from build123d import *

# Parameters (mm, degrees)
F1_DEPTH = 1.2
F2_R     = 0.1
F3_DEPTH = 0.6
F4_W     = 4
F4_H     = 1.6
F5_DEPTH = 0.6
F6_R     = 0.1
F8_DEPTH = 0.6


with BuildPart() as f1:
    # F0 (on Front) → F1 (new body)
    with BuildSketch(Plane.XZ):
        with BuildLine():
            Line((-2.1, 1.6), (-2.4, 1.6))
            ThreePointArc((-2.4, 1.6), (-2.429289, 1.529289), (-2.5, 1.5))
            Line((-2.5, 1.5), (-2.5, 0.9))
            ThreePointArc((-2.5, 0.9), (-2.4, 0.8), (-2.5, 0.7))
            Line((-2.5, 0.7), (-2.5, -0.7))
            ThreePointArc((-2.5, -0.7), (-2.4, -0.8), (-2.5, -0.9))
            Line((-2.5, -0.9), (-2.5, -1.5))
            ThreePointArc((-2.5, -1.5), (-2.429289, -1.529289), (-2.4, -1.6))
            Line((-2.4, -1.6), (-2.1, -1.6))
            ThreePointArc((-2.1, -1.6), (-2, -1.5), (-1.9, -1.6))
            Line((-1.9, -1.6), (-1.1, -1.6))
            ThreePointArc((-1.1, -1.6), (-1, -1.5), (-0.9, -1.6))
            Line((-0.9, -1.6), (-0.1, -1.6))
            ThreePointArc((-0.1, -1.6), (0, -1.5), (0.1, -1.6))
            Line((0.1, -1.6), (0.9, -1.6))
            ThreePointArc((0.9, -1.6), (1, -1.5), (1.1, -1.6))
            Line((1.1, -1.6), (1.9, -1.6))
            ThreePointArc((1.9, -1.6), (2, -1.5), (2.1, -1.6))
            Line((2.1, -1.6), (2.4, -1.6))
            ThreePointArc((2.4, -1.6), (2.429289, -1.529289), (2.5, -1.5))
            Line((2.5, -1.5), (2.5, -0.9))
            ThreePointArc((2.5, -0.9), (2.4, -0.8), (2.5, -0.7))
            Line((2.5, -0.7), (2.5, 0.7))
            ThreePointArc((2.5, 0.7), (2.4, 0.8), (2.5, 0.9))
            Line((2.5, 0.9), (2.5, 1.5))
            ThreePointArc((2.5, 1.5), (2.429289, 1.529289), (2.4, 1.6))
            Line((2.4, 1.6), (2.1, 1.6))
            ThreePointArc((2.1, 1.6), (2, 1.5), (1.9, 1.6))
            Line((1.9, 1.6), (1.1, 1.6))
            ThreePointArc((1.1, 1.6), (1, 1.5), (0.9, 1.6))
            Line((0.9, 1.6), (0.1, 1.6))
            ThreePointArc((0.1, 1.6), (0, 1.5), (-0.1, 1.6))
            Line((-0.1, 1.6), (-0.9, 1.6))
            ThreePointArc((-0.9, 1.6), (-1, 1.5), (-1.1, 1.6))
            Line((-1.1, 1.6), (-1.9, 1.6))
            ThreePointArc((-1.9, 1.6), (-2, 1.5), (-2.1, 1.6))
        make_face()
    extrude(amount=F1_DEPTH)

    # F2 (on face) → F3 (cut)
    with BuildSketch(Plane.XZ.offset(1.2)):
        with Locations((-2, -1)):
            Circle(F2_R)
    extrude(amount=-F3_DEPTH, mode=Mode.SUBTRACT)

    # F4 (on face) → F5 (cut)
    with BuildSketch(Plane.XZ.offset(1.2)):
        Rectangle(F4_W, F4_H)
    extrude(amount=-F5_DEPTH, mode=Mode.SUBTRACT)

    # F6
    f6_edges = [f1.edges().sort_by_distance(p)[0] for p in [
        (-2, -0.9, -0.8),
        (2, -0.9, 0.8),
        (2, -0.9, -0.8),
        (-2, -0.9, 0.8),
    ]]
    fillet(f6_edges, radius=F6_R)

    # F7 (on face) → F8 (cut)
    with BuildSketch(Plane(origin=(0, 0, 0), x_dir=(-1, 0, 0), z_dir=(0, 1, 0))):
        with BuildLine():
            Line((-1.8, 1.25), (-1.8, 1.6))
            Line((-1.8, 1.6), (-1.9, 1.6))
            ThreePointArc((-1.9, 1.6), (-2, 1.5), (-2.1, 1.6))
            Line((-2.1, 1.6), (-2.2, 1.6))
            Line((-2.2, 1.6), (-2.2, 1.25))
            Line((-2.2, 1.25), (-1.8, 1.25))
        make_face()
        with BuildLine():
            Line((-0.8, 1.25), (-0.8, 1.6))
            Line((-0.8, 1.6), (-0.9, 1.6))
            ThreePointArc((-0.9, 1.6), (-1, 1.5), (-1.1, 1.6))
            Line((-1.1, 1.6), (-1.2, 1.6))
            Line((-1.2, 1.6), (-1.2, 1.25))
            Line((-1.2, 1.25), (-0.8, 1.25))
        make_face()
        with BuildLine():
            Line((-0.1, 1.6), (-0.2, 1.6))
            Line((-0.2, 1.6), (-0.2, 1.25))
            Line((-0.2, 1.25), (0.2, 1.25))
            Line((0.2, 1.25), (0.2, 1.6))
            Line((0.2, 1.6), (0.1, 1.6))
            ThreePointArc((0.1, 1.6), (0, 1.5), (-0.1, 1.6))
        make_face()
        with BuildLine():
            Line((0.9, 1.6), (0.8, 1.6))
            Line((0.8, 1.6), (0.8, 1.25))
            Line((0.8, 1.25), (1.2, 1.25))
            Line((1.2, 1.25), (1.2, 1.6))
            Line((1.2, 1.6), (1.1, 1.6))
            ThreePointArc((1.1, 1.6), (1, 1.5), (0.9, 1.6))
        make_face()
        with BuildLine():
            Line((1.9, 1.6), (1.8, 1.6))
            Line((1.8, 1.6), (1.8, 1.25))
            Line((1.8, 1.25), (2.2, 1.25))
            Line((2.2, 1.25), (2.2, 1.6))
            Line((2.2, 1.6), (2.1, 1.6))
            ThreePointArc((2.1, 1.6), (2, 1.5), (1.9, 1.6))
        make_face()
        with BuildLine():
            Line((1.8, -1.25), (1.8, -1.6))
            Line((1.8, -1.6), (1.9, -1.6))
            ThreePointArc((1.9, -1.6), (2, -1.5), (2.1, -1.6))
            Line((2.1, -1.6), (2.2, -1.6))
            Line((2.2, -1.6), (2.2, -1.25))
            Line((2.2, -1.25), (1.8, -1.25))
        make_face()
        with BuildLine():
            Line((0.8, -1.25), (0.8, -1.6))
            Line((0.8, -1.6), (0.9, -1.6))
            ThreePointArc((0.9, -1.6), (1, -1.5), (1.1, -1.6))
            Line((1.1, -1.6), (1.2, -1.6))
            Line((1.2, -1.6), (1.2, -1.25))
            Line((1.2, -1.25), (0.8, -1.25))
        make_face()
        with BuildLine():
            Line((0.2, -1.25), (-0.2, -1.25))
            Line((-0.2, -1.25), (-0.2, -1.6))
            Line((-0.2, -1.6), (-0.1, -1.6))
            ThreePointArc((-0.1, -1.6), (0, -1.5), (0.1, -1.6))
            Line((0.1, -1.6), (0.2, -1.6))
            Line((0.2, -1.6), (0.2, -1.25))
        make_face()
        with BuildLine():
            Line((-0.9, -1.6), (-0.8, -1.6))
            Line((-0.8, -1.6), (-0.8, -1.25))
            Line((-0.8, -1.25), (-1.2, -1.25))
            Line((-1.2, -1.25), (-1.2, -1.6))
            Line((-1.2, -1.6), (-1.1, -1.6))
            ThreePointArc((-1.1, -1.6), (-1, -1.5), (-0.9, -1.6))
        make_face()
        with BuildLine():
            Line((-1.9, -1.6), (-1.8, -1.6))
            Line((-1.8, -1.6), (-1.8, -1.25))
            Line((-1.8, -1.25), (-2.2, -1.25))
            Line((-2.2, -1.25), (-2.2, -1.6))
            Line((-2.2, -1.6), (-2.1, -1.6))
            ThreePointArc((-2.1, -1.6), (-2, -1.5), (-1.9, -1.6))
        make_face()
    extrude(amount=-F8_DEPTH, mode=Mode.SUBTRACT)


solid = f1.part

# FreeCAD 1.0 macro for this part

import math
import FreeCAD as App
import Part
import Sketcher
Q = App.Units.Quantity


def edges_at(feature, points):
    """Names of the edges that pass closest to the given points."""
    edges = feature.Shape.Edges
    near = lambda p: min(range(len(edges)), key=lambda i: edges[i].distToShape(Part.Vertex(*p))[0])
    return sorted({f"Edge{near(p) + 1}" for p in points})


def add_polygon(sketch, points):
    """Adds a closed chain of lines whose ends are joined by coincident constraints."""
    first, n = sketch.GeometryCount, len(points)
    for a, b in zip(points, points[1:] + points[:1]):
        sketch.addGeometry(Part.LineSegment(App.Vector(*a, 0), App.Vector(*b, 0)), False)
    for i in range(n):
        sketch.addConstraint(Sketcher.Constraint("Coincident", first + i, 2, first + (i + 1) % n, 1))

doc = App.newDocument("Part")
body = doc.addObject("PartDesign::Body", "Body")

# Sketch on XZ plane
sketch1 = doc.addObject("Sketcher::SketchObject", "Sketch")
body.addObject(sketch1)
sketch1.AttachmentSupport = (doc.XZ_Plane, [""])
sketch1.MapMode = "FlatFace"
sketch1.addGeometry(Part.LineSegment(App.Vector(-2.1, 1.6, 0), App.Vector(-2.4, 1.6, 0)), False)
sketch1.addGeometry(Part.ArcOfCircle(Part.Circle(App.Vector(-2.499999, 1.599999, 0), App.Vector(0, 0, 1), 0.099999), math.radians(-90.00063), math.radians(0.00063)), False)
sketch1.addGeometry(Part.LineSegment(App.Vector(-2.5, 1.5, 0), App.Vector(-2.5, 0.9, 0)), False)
sketch1.addGeometry(Part.ArcOfCircle(Part.Circle(App.Vector(-2.5, 0.8, 0), App.Vector(0, 0, 1), 0.1), math.radians(-90), math.radians(90)), False)
sketch1.addGeometry(Part.LineSegment(App.Vector(-2.5, 0.7, 0), App.Vector(-2.5, -0.7, 0)), False)
sketch1.addGeometry(Part.ArcOfCircle(Part.Circle(App.Vector(-2.5, -0.8, 0), App.Vector(0, 0, 1), 0.1), math.radians(-90), math.radians(90)), False)
sketch1.addGeometry(Part.LineSegment(App.Vector(-2.5, -0.9, 0), App.Vector(-2.5, -1.5, 0)), False)
sketch1.addGeometry(Part.ArcOfCircle(Part.Circle(App.Vector(-2.499999, -1.599999, 0), App.Vector(0, 0, 1), 0.099999), math.radians(-0.00063), math.radians(90.00063)), False)
sketch1.addGeometry(Part.LineSegment(App.Vector(-2.4, -1.6, 0), App.Vector(-2.1, -1.6, 0)), False)
sketch1.addGeometry(Part.ArcOfCircle(Part.Circle(App.Vector(-2, -1.6, 0), App.Vector(0, 0, 1), 0.1), math.radians(0), math.radians(180)), False)
sketch1.addGeometry(Part.LineSegment(App.Vector(-1.9, -1.6, 0), App.Vector(-1.1, -1.6, 0)), False)
sketch1.addGeometry(Part.ArcOfCircle(Part.Circle(App.Vector(-1, -1.6, 0), App.Vector(0, 0, 1), 0.1), math.radians(0), math.radians(180)), False)
sketch1.addGeometry(Part.LineSegment(App.Vector(-0.9, -1.6, 0), App.Vector(-0.1, -1.6, 0)), False)
sketch1.addGeometry(Part.ArcOfCircle(Part.Circle(App.Vector(0, -1.6, 0), App.Vector(0, 0, 1), 0.1), math.radians(0), math.radians(180)), False)
sketch1.addGeometry(Part.LineSegment(App.Vector(0.1, -1.6, 0), App.Vector(0.9, -1.6, 0)), False)
sketch1.addGeometry(Part.ArcOfCircle(Part.Circle(App.Vector(1, -1.6, 0), App.Vector(0, 0, 1), 0.1), math.radians(0), math.radians(180)), False)
sketch1.addGeometry(Part.LineSegment(App.Vector(1.1, -1.6, 0), App.Vector(1.9, -1.6, 0)), False)
sketch1.addGeometry(Part.ArcOfCircle(Part.Circle(App.Vector(2, -1.6, 0), App.Vector(0, 0, 1), 0.1), math.radians(0), math.radians(180)), False)
sketch1.addGeometry(Part.LineSegment(App.Vector(2.1, -1.6, 0), App.Vector(2.4, -1.6, 0)), False)
sketch1.addGeometry(Part.ArcOfCircle(Part.Circle(App.Vector(2.499999, -1.599999, 0), App.Vector(0, 0, 1), 0.099999), math.radians(89.99937), math.radians(180.00063)), False)
sketch1.addGeometry(Part.LineSegment(App.Vector(2.5, -1.5, 0), App.Vector(2.5, -0.9, 0)), False)
sketch1.addGeometry(Part.ArcOfCircle(Part.Circle(App.Vector(2.5, -0.8, 0), App.Vector(0, 0, 1), 0.1), math.radians(90), math.radians(270)), False)
sketch1.addGeometry(Part.LineSegment(App.Vector(2.5, -0.7, 0), App.Vector(2.5, 0.7, 0)), False)
sketch1.addGeometry(Part.ArcOfCircle(Part.Circle(App.Vector(2.5, 0.8, 0), App.Vector(0, 0, 1), 0.1), math.radians(90), math.radians(270)), False)
sketch1.addGeometry(Part.LineSegment(App.Vector(2.5, 0.9, 0), App.Vector(2.5, 1.5, 0)), False)
sketch1.addGeometry(Part.ArcOfCircle(Part.Circle(App.Vector(2.499999, 1.599999, 0), App.Vector(0, 0, 1), 0.099999), math.radians(179.99937), math.radians(270.00063)), False)
sketch1.addGeometry(Part.LineSegment(App.Vector(2.4, 1.6, 0), App.Vector(2.1, 1.6, 0)), False)
sketch1.addGeometry(Part.ArcOfCircle(Part.Circle(App.Vector(2, 1.6, 0), App.Vector(0, 0, 1), 0.1), math.radians(180), math.radians(360)), False)
sketch1.addGeometry(Part.LineSegment(App.Vector(1.9, 1.6, 0), App.Vector(1.1, 1.6, 0)), False)
sketch1.addGeometry(Part.ArcOfCircle(Part.Circle(App.Vector(1, 1.6, 0), App.Vector(0, 0, 1), 0.1), math.radians(180), math.radians(360)), False)
sketch1.addGeometry(Part.LineSegment(App.Vector(0.9, 1.6, 0), App.Vector(0.1, 1.6, 0)), False)
sketch1.addGeometry(Part.ArcOfCircle(Part.Circle(App.Vector(0, 1.6, 0), App.Vector(0, 0, 1), 0.1), math.radians(180), math.radians(360)), False)
sketch1.addGeometry(Part.LineSegment(App.Vector(-0.1, 1.6, 0), App.Vector(-0.9, 1.6, 0)), False)
sketch1.addGeometry(Part.ArcOfCircle(Part.Circle(App.Vector(-1, 1.6, 0), App.Vector(0, 0, 1), 0.1), math.radians(180), math.radians(360)), False)
sketch1.addGeometry(Part.LineSegment(App.Vector(-1.1, 1.6, 0), App.Vector(-1.9, 1.6, 0)), False)
sketch1.addGeometry(Part.ArcOfCircle(Part.Circle(App.Vector(-2, 1.6, 0), App.Vector(0, 0, 1), 0.1), math.radians(180), math.radians(360)), False)
sketch1.addConstraint(Sketcher.Constraint("Coincident", 0, 2, 1, 2))
sketch1.addConstraint(Sketcher.Constraint("Coincident", 1, 1, 2, 1))
sketch1.addConstraint(Sketcher.Constraint("Coincident", 2, 2, 3, 2))
sketch1.addConstraint(Sketcher.Constraint("Coincident", 3, 1, 4, 1))
sketch1.addConstraint(Sketcher.Constraint("Coincident", 4, 2, 5, 2))
sketch1.addConstraint(Sketcher.Constraint("Coincident", 5, 1, 6, 1))
sketch1.addConstraint(Sketcher.Constraint("Coincident", 6, 2, 7, 2))
sketch1.addConstraint(Sketcher.Constraint("Coincident", 7, 1, 8, 1))
sketch1.addConstraint(Sketcher.Constraint("Coincident", 8, 2, 9, 2))
sketch1.addConstraint(Sketcher.Constraint("Coincident", 9, 1, 10, 1))
sketch1.addConstraint(Sketcher.Constraint("Coincident", 10, 2, 11, 2))
sketch1.addConstraint(Sketcher.Constraint("Coincident", 11, 1, 12, 1))
sketch1.addConstraint(Sketcher.Constraint("Coincident", 12, 2, 13, 2))
sketch1.addConstraint(Sketcher.Constraint("Coincident", 13, 1, 14, 1))
sketch1.addConstraint(Sketcher.Constraint("Coincident", 14, 2, 15, 2))
sketch1.addConstraint(Sketcher.Constraint("Coincident", 15, 1, 16, 1))
sketch1.addConstraint(Sketcher.Constraint("Coincident", 16, 2, 17, 2))
sketch1.addConstraint(Sketcher.Constraint("Coincident", 17, 1, 18, 1))
sketch1.addConstraint(Sketcher.Constraint("Coincident", 18, 2, 19, 2))
sketch1.addConstraint(Sketcher.Constraint("Coincident", 19, 1, 20, 1))
sketch1.addConstraint(Sketcher.Constraint("Coincident", 20, 2, 21, 2))
sketch1.addConstraint(Sketcher.Constraint("Coincident", 21, 1, 22, 1))
sketch1.addConstraint(Sketcher.Constraint("Coincident", 22, 2, 23, 2))
sketch1.addConstraint(Sketcher.Constraint("Coincident", 23, 1, 24, 1))
sketch1.addConstraint(Sketcher.Constraint("Coincident", 24, 2, 25, 2))
sketch1.addConstraint(Sketcher.Constraint("Coincident", 25, 1, 26, 1))
sketch1.addConstraint(Sketcher.Constraint("Coincident", 26, 2, 27, 2))
sketch1.addConstraint(Sketcher.Constraint("Coincident", 27, 1, 28, 1))
sketch1.addConstraint(Sketcher.Constraint("Coincident", 28, 2, 29, 2))
sketch1.addConstraint(Sketcher.Constraint("Coincident", 29, 1, 30, 1))
sketch1.addConstraint(Sketcher.Constraint("Coincident", 30, 2, 31, 2))
sketch1.addConstraint(Sketcher.Constraint("Coincident", 31, 1, 32, 1))
sketch1.addConstraint(Sketcher.Constraint("Coincident", 32, 2, 33, 2))
sketch1.addConstraint(Sketcher.Constraint("Coincident", 33, 1, 34, 1))
sketch1.addConstraint(Sketcher.Constraint("Coincident", 34, 2, 35, 2))
sketch1.addConstraint(Sketcher.Constraint("Coincident", 35, 1, 0, 1))
sketch1.addConstraint(Sketcher.Constraint("Horizontal", 0))
sketch1.addConstraint(Sketcher.Constraint("Vertical", 2))
sketch1.addConstraint(Sketcher.Constraint("Vertical", 4))
sketch1.addConstraint(Sketcher.Constraint("Vertical", 6))
sketch1.addConstraint(Sketcher.Constraint("Horizontal", 8))
sketch1.addConstraint(Sketcher.Constraint("Horizontal", 10))
sketch1.addConstraint(Sketcher.Constraint("Horizontal", 12))
sketch1.addConstraint(Sketcher.Constraint("Horizontal", 14))
sketch1.addConstraint(Sketcher.Constraint("Horizontal", 16))
sketch1.addConstraint(Sketcher.Constraint("Horizontal", 18))
sketch1.addConstraint(Sketcher.Constraint("Vertical", 20))
sketch1.addConstraint(Sketcher.Constraint("Vertical", 22))
sketch1.addConstraint(Sketcher.Constraint("Vertical", 24))
sketch1.addConstraint(Sketcher.Constraint("Horizontal", 26))
sketch1.addConstraint(Sketcher.Constraint("Horizontal", 28))
sketch1.addConstraint(Sketcher.Constraint("Horizontal", 30))
sketch1.addConstraint(Sketcher.Constraint("Horizontal", 32))
sketch1.addConstraint(Sketcher.Constraint("Horizontal", 34))
sketch1.addConstraint(Sketcher.Constraint("Equal", 1, 3))
sketch1.addConstraint(Sketcher.Constraint("Equal", 3, 5))
sketch1.addConstraint(Sketcher.Constraint("Equal", 5, 7))
sketch1.addConstraint(Sketcher.Constraint("Equal", 7, 9))
sketch1.addConstraint(Sketcher.Constraint("Equal", 9, 11))
sketch1.addConstraint(Sketcher.Constraint("Equal", 11, 13))
sketch1.addConstraint(Sketcher.Constraint("Equal", 13, 15))
sketch1.addConstraint(Sketcher.Constraint("Equal", 15, 17))
sketch1.addConstraint(Sketcher.Constraint("Equal", 17, 19))
sketch1.addConstraint(Sketcher.Constraint("Equal", 19, 21))
sketch1.addConstraint(Sketcher.Constraint("Equal", 21, 23))
sketch1.addConstraint(Sketcher.Constraint("Equal", 23, 25))
sketch1.addConstraint(Sketcher.Constraint("Equal", 25, 27))
sketch1.addConstraint(Sketcher.Constraint("Equal", 27, 29))
sketch1.addConstraint(Sketcher.Constraint("Equal", 29, 31))
sketch1.addConstraint(Sketcher.Constraint("Equal", 31, 33))
sketch1.addConstraint(Sketcher.Constraint("Equal", 33, 35))
sketch1.addConstraint(Sketcher.Constraint("Symmetric", 1, 3, 19, 3, -1, 1))
sketch1.addConstraint(Sketcher.Constraint("Symmetric", 3, 3, 21, 3, -1, 1))
sketch1.addConstraint(Sketcher.Constraint("Symmetric", 5, 3, 23, 3, -1, 1))
sketch1.addConstraint(Sketcher.Constraint("Symmetric", 7, 3, 25, 3, -1, 1))
sketch1.addConstraint(Sketcher.Constraint("Symmetric", 9, 3, 27, 3, -1, 1))
sketch1.addConstraint(Sketcher.Constraint("Symmetric", 11, 3, 29, 3, -1, 1))
sketch1.addConstraint(Sketcher.Constraint("Symmetric", 13, 3, 31, 3, -1, 1))
sketch1.addConstraint(Sketcher.Constraint("Symmetric", 15, 3, 33, 3, -1, 1))
sketch1.addConstraint(Sketcher.Constraint("Symmetric", 17, 3, 35, 3, -1, 1))
sketch1.addConstraint(Sketcher.Constraint("Symmetric", 11, 3, 15, 3, -2))
sketch1.addConstraint(Sketcher.Constraint("Symmetric", 9, 3, 17, 3, -2))
sketch1.addConstraint(Sketcher.Constraint("Symmetric", 7, 3, 19, 3, -2))
sketch1.addConstraint(Sketcher.Constraint("Symmetric", 5, 3, 21, 3, -2))
sketch1.addConstraint(Sketcher.Constraint("Symmetric", 12, 2, 13, 1, -2))
sketch1.addConstraint(Sketcher.Constraint("Horizontal", 7, 3, 9, 3))
sketch1.addConstraint(Sketcher.Constraint("Horizontal", 9, 3, 11, 3))
sketch1.addConstraint(Sketcher.Constraint("Horizontal", 11, 3, 13, 3))
sketch1.addConstraint(Sketcher.Constraint("Horizontal", 35, 3, 0, 2))
sketch1.addConstraint(Sketcher.Constraint("Horizontal", 19, 3, 7, 1))
sketch1.addConstraint(Sketcher.Constraint("Horizontal", 8, 2, 9, 1))
sketch1.addConstraint(Sketcher.Constraint("Horizontal", 10, 2, 11, 1))
sketch1.addConstraint(Sketcher.Constraint("Horizontal", 14, 2, 15, 1))
sketch1.addConstraint(Sketcher.Constraint("Horizontal", 16, 2, 17, 1))
sketch1.addConstraint(Sketcher.Constraint("Horizontal", 0, 2, 25, 1))
sketch1.addConstraint(Sketcher.Constraint("Horizontal", 26, 2, 27, 1))
sketch1.addConstraint(Sketcher.Constraint("Horizontal", 28, 2, 29, 1))
sketch1.addConstraint(Sketcher.Constraint("Horizontal", 30, 2, 31, 1))
sketch1.addConstraint(Sketcher.Constraint("Horizontal", 32, 2, 33, 1))
sketch1.addConstraint(Sketcher.Constraint("Vertical", 1, 3, 3, 3))
sketch1.addConstraint(Sketcher.Constraint("Vertical", 7, 3, 1, 1))
sketch1.addConstraint(Sketcher.Constraint("Vertical", 2, 2, 3, 1))
sketch1.addConstraint(Sketcher.Constraint("Vertical", 4, 2, 5, 1))
sketch1.addConstraint(Sketcher.Constraint("Vertical", 25, 3, 19, 1))
sketch1.addConstraint(Sketcher.Constraint("Vertical", 20, 2, 21, 1))
sketch1.addConstraint(Sketcher.Constraint("Vertical", 22, 2, 23, 1))
sketch1.addConstraint(Sketcher.Constraint("Equal", 10, 12))
sketch1.addConstraint(Sketcher.Constraint("Radius", 1, Q("0.099999 mm")))
sketch1.addConstraint(Sketcher.Constraint("DistanceX", 0, 2, 0, 1, Q("0.3 mm")))
sketch1.addConstraint(Sketcher.Constraint("DistanceX", 10, 1, 10, 2, Q("0.8 mm")))
sketch1.addConstraint(Sketcher.Constraint("DistanceY", 2, 2, 2, 1, Q("0.6 mm")))
sketch1.addConstraint(Sketcher.Constraint("DistanceY", 4, 2, 4, 1, Q("1.4 mm")))
pad1 = doc.addObject("PartDesign::Pad", "Pad")
body.addObject(pad1)
pad1.Profile = sketch1
pad1.Length = 1.2

# Sketch on XZ plane
sketch2 = doc.addObject("Sketcher::SketchObject", "Sketch001")
body.addObject(sketch2)
sketch2.AttachmentSupport = (doc.XZ_Plane, [""])
sketch2.MapMode = "FlatFace"
sketch2.AttachmentOffset = App.Placement(App.Vector(0, 0, 1.2), App.Rotation())
sketch2.addGeometry(Part.Circle(App.Vector(-2, -1, 0), App.Vector(0, 0, 1), 0.1), False)
sketch2.addConstraint(Sketcher.Constraint("Diameter", 0, Q("0.2 mm")))
sketch2.addConstraint(Sketcher.Constraint("DistanceX", 0, 3, -1, 1, Q("2 mm")))
sketch2.addConstraint(Sketcher.Constraint("DistanceY", 0, 3, -1, 1, Q("1 mm")))
pocket1 = doc.addObject("PartDesign::Pocket", "Pocket")
body.addObject(pocket1)
pocket1.Profile = sketch2
pocket1.Length = 0.6

# Sketch on XZ plane
sketch3 = doc.addObject("Sketcher::SketchObject", "Sketch002")
body.addObject(sketch3)
sketch3.AttachmentSupport = (doc.XZ_Plane, [""])
sketch3.MapMode = "FlatFace"
sketch3.AttachmentOffset = App.Placement(App.Vector(0, 0, 1.2), App.Rotation())
add_polygon(sketch3, [(-2, 0.8), (-2, -0.8), (2, -0.8), (2, 0.8)])  # lines 0-3
sketch3.addConstraint(Sketcher.Constraint("Vertical", 0))
sketch3.addConstraint(Sketcher.Constraint("Horizontal", 1))
sketch3.addConstraint(Sketcher.Constraint("Vertical", 2))
sketch3.addConstraint(Sketcher.Constraint("Horizontal", 3))
sketch3.addConstraint(Sketcher.Constraint("Symmetric", 0, 2, 2, 2, -1, 1))
sketch3.addConstraint(Sketcher.Constraint("DistanceX", 1, 1, 1, 2, Q("4 mm")))
sketch3.addConstraint(Sketcher.Constraint("DistanceY", 0, 2, 0, 1, Q("1.6 mm")))
pocket2 = doc.addObject("PartDesign::Pocket", "Pocket001")
body.addObject(pocket2)
pocket2.Profile = sketch3
pocket2.Length = 0.6
doc.recompute()

fillet = doc.addObject("PartDesign::Fillet", "Fillet")
body.addObject(fillet)
fillet.Base = (pocket2, edges_at(pocket2, [
    (-2, -0.9, -0.8),
    (2, -0.9, 0.8),
    (2, -0.9, -0.8),
    (-2, -0.9, 0.8),
]))
fillet.Radius = 0.1

# Sketch on XZ plane
sketch4 = doc.addObject("Sketcher::SketchObject", "Sketch003")
body.addObject(sketch4)
sketch4.AttachmentSupport = (doc.XZ_Plane, [""])
sketch4.MapMode = "FlatFace"
sketch4.addGeometry(Part.LineSegment(App.Vector(1.8, 1.25, 0), App.Vector(1.8, 1.6, 0)), False)
sketch4.addGeometry(Part.LineSegment(App.Vector(1.8, 1.6, 0), App.Vector(1.9, 1.6, 0)), False)
sketch4.addGeometry(Part.ArcOfCircle(Part.Circle(App.Vector(2, 1.6, 0), App.Vector(0, 0, 1), 0.1), math.radians(180), math.radians(360)), False)
sketch4.addGeometry(Part.LineSegment(App.Vector(2.1, 1.6, 0), App.Vector(2.2, 1.6, 0)), False)
sketch4.addGeometry(Part.LineSegment(App.Vector(2.2, 1.6, 0), App.Vector(2.2, 1.25, 0)), False)
sketch4.addGeometry(Part.LineSegment(App.Vector(2.2, 1.25, 0), App.Vector(1.8, 1.25, 0)), False)
sketch4.addGeometry(Part.LineSegment(App.Vector(0.8, 1.25, 0), App.Vector(0.8, 1.6, 0)), False)
sketch4.addGeometry(Part.LineSegment(App.Vector(0.8, 1.6, 0), App.Vector(0.9, 1.6, 0)), False)
sketch4.addGeometry(Part.ArcOfCircle(Part.Circle(App.Vector(1, 1.6, 0), App.Vector(0, 0, 1), 0.1), math.radians(180), math.radians(360)), False)
sketch4.addGeometry(Part.LineSegment(App.Vector(1.1, 1.6, 0), App.Vector(1.2, 1.6, 0)), False)
sketch4.addGeometry(Part.LineSegment(App.Vector(1.2, 1.6, 0), App.Vector(1.2, 1.25, 0)), False)
sketch4.addGeometry(Part.LineSegment(App.Vector(1.2, 1.25, 0), App.Vector(0.8, 1.25, 0)), False)
sketch4.addGeometry(Part.LineSegment(App.Vector(0.1, 1.6, 0), App.Vector(0.2, 1.6, 0)), False)
sketch4.addGeometry(Part.LineSegment(App.Vector(0.2, 1.6, 0), App.Vector(0.2, 1.25, 0)), False)
sketch4.addGeometry(Part.LineSegment(App.Vector(0.2, 1.25, 0), App.Vector(-0.2, 1.25, 0)), False)
sketch4.addGeometry(Part.LineSegment(App.Vector(-0.2, 1.25, 0), App.Vector(-0.2, 1.6, 0)), False)
sketch4.addGeometry(Part.LineSegment(App.Vector(-0.2, 1.6, 0), App.Vector(-0.1, 1.6, 0)), False)
sketch4.addGeometry(Part.ArcOfCircle(Part.Circle(App.Vector(0, 1.6, 0), App.Vector(0, 0, 1), 0.1), math.radians(180), math.radians(360)), False)
sketch4.addGeometry(Part.LineSegment(App.Vector(-0.9, 1.6, 0), App.Vector(-0.8, 1.6, 0)), False)
sketch4.addGeometry(Part.LineSegment(App.Vector(-0.8, 1.6, 0), App.Vector(-0.8, 1.25, 0)), False)
sketch4.addGeometry(Part.LineSegment(App.Vector(-0.8, 1.25, 0), App.Vector(-1.2, 1.25, 0)), False)
sketch4.addGeometry(Part.LineSegment(App.Vector(-1.2, 1.25, 0), App.Vector(-1.2, 1.6, 0)), False)
sketch4.addGeometry(Part.LineSegment(App.Vector(-1.2, 1.6, 0), App.Vector(-1.1, 1.6, 0)), False)
sketch4.addGeometry(Part.ArcOfCircle(Part.Circle(App.Vector(-1, 1.6, 0), App.Vector(0, 0, 1), 0.1), math.radians(180), math.radians(360)), False)
sketch4.addGeometry(Part.LineSegment(App.Vector(-1.9, 1.6, 0), App.Vector(-1.8, 1.6, 0)), False)
sketch4.addGeometry(Part.LineSegment(App.Vector(-1.8, 1.6, 0), App.Vector(-1.8, 1.25, 0)), False)
sketch4.addGeometry(Part.LineSegment(App.Vector(-1.8, 1.25, 0), App.Vector(-2.2, 1.25, 0)), False)
sketch4.addGeometry(Part.LineSegment(App.Vector(-2.2, 1.25, 0), App.Vector(-2.2, 1.6, 0)), False)
sketch4.addGeometry(Part.LineSegment(App.Vector(-2.2, 1.6, 0), App.Vector(-2.1, 1.6, 0)), False)
sketch4.addGeometry(Part.ArcOfCircle(Part.Circle(App.Vector(-2, 1.6, 0), App.Vector(0, 0, 1), 0.1), math.radians(180), math.radians(360)), False)
sketch4.addGeometry(Part.LineSegment(App.Vector(-1.8, -1.25, 0), App.Vector(-1.8, -1.6, 0)), False)
sketch4.addGeometry(Part.LineSegment(App.Vector(-1.8, -1.6, 0), App.Vector(-1.9, -1.6, 0)), False)
sketch4.addGeometry(Part.ArcOfCircle(Part.Circle(App.Vector(-2, -1.6, 0), App.Vector(0, 0, 1), 0.1), math.radians(0), math.radians(180)), False)
sketch4.addGeometry(Part.LineSegment(App.Vector(-2.1, -1.6, 0), App.Vector(-2.2, -1.6, 0)), False)
sketch4.addGeometry(Part.LineSegment(App.Vector(-2.2, -1.6, 0), App.Vector(-2.2, -1.25, 0)), False)
sketch4.addGeometry(Part.LineSegment(App.Vector(-2.2, -1.25, 0), App.Vector(-1.8, -1.25, 0)), False)
sketch4.addGeometry(Part.LineSegment(App.Vector(-0.8, -1.25, 0), App.Vector(-0.8, -1.6, 0)), False)
sketch4.addGeometry(Part.LineSegment(App.Vector(-0.8, -1.6, 0), App.Vector(-0.9, -1.6, 0)), False)
sketch4.addGeometry(Part.ArcOfCircle(Part.Circle(App.Vector(-1, -1.6, 0), App.Vector(0, 0, 1), 0.1), math.radians(0), math.radians(180)), False)
sketch4.addGeometry(Part.LineSegment(App.Vector(-1.1, -1.6, 0), App.Vector(-1.2, -1.6, 0)), False)
sketch4.addGeometry(Part.LineSegment(App.Vector(-1.2, -1.6, 0), App.Vector(-1.2, -1.25, 0)), False)
sketch4.addGeometry(Part.LineSegment(App.Vector(-1.2, -1.25, 0), App.Vector(-0.8, -1.25, 0)), False)
sketch4.addGeometry(Part.LineSegment(App.Vector(-0.2, -1.25, 0), App.Vector(0.2, -1.25, 0)), False)
sketch4.addGeometry(Part.LineSegment(App.Vector(0.2, -1.25, 0), App.Vector(0.2, -1.6, 0)), False)
sketch4.addGeometry(Part.LineSegment(App.Vector(0.2, -1.6, 0), App.Vector(0.1, -1.6, 0)), False)
sketch4.addGeometry(Part.ArcOfCircle(Part.Circle(App.Vector(0, -1.6, 0), App.Vector(0, 0, 1), 0.1), math.radians(0), math.radians(180)), False)
sketch4.addGeometry(Part.LineSegment(App.Vector(-0.1, -1.6, 0), App.Vector(-0.2, -1.6, 0)), False)
sketch4.addGeometry(Part.LineSegment(App.Vector(-0.2, -1.6, 0), App.Vector(-0.2, -1.25, 0)), False)
sketch4.addGeometry(Part.LineSegment(App.Vector(0.9, -1.6, 0), App.Vector(0.8, -1.6, 0)), False)
sketch4.addGeometry(Part.LineSegment(App.Vector(0.8, -1.6, 0), App.Vector(0.8, -1.25, 0)), False)
sketch4.addGeometry(Part.LineSegment(App.Vector(0.8, -1.25, 0), App.Vector(1.2, -1.25, 0)), False)
sketch4.addGeometry(Part.LineSegment(App.Vector(1.2, -1.25, 0), App.Vector(1.2, -1.6, 0)), False)
sketch4.addGeometry(Part.LineSegment(App.Vector(1.2, -1.6, 0), App.Vector(1.1, -1.6, 0)), False)
sketch4.addGeometry(Part.ArcOfCircle(Part.Circle(App.Vector(1, -1.6, 0), App.Vector(0, 0, 1), 0.1), math.radians(0), math.radians(180)), False)
sketch4.addGeometry(Part.LineSegment(App.Vector(1.9, -1.6, 0), App.Vector(1.8, -1.6, 0)), False)
sketch4.addGeometry(Part.LineSegment(App.Vector(1.8, -1.6, 0), App.Vector(1.8, -1.25, 0)), False)
sketch4.addGeometry(Part.LineSegment(App.Vector(1.8, -1.25, 0), App.Vector(2.2, -1.25, 0)), False)
sketch4.addGeometry(Part.LineSegment(App.Vector(2.2, -1.25, 0), App.Vector(2.2, -1.6, 0)), False)
sketch4.addGeometry(Part.LineSegment(App.Vector(2.2, -1.6, 0), App.Vector(2.1, -1.6, 0)), False)
sketch4.addGeometry(Part.ArcOfCircle(Part.Circle(App.Vector(2, -1.6, 0), App.Vector(0, 0, 1), 0.1), math.radians(0), math.radians(180)), False)
sketch4.addConstraint(Sketcher.Constraint("Coincident", 0, 2, 1, 1))
sketch4.addConstraint(Sketcher.Constraint("Coincident", 1, 2, 2, 1))
sketch4.addConstraint(Sketcher.Constraint("Coincident", 2, 2, 3, 1))
sketch4.addConstraint(Sketcher.Constraint("Coincident", 3, 2, 4, 1))
sketch4.addConstraint(Sketcher.Constraint("Coincident", 4, 2, 5, 1))
sketch4.addConstraint(Sketcher.Constraint("Coincident", 5, 2, 0, 1))
sketch4.addConstraint(Sketcher.Constraint("Coincident", 6, 2, 7, 1))
sketch4.addConstraint(Sketcher.Constraint("Coincident", 7, 2, 8, 1))
sketch4.addConstraint(Sketcher.Constraint("Coincident", 8, 2, 9, 1))
sketch4.addConstraint(Sketcher.Constraint("Coincident", 9, 2, 10, 1))
sketch4.addConstraint(Sketcher.Constraint("Coincident", 10, 2, 11, 1))
sketch4.addConstraint(Sketcher.Constraint("Coincident", 11, 2, 6, 1))
sketch4.addConstraint(Sketcher.Constraint("Coincident", 12, 2, 13, 1))
sketch4.addConstraint(Sketcher.Constraint("Coincident", 13, 2, 14, 1))
sketch4.addConstraint(Sketcher.Constraint("Coincident", 14, 2, 15, 1))
sketch4.addConstraint(Sketcher.Constraint("Coincident", 15, 2, 16, 1))
sketch4.addConstraint(Sketcher.Constraint("Coincident", 16, 2, 17, 1))
sketch4.addConstraint(Sketcher.Constraint("Coincident", 17, 2, 12, 1))
sketch4.addConstraint(Sketcher.Constraint("Coincident", 18, 2, 19, 1))
sketch4.addConstraint(Sketcher.Constraint("Coincident", 19, 2, 20, 1))
sketch4.addConstraint(Sketcher.Constraint("Coincident", 20, 2, 21, 1))
sketch4.addConstraint(Sketcher.Constraint("Coincident", 21, 2, 22, 1))
sketch4.addConstraint(Sketcher.Constraint("Coincident", 22, 2, 23, 1))
sketch4.addConstraint(Sketcher.Constraint("Coincident", 23, 2, 18, 1))
sketch4.addConstraint(Sketcher.Constraint("Coincident", 24, 2, 25, 1))
sketch4.addConstraint(Sketcher.Constraint("Coincident", 25, 2, 26, 1))
sketch4.addConstraint(Sketcher.Constraint("Coincident", 26, 2, 27, 1))
sketch4.addConstraint(Sketcher.Constraint("Coincident", 27, 2, 28, 1))
sketch4.addConstraint(Sketcher.Constraint("Coincident", 28, 2, 29, 1))
sketch4.addConstraint(Sketcher.Constraint("Coincident", 29, 2, 24, 1))
sketch4.addConstraint(Sketcher.Constraint("Coincident", 30, 2, 31, 1))
sketch4.addConstraint(Sketcher.Constraint("Coincident", 31, 2, 32, 1))
sketch4.addConstraint(Sketcher.Constraint("Coincident", 32, 2, 33, 1))
sketch4.addConstraint(Sketcher.Constraint("Coincident", 33, 2, 34, 1))
sketch4.addConstraint(Sketcher.Constraint("Coincident", 34, 2, 35, 1))
sketch4.addConstraint(Sketcher.Constraint("Coincident", 35, 2, 30, 1))
sketch4.addConstraint(Sketcher.Constraint("Coincident", 36, 2, 37, 1))
sketch4.addConstraint(Sketcher.Constraint("Coincident", 37, 2, 38, 1))
sketch4.addConstraint(Sketcher.Constraint("Coincident", 38, 2, 39, 1))
sketch4.addConstraint(Sketcher.Constraint("Coincident", 39, 2, 40, 1))
sketch4.addConstraint(Sketcher.Constraint("Coincident", 40, 2, 41, 1))
sketch4.addConstraint(Sketcher.Constraint("Coincident", 41, 2, 36, 1))
sketch4.addConstraint(Sketcher.Constraint("Coincident", 42, 2, 43, 1))
sketch4.addConstraint(Sketcher.Constraint("Coincident", 43, 2, 44, 1))
sketch4.addConstraint(Sketcher.Constraint("Coincident", 44, 2, 45, 1))
sketch4.addConstraint(Sketcher.Constraint("Coincident", 45, 2, 46, 1))
sketch4.addConstraint(Sketcher.Constraint("Coincident", 46, 2, 47, 1))
sketch4.addConstraint(Sketcher.Constraint("Coincident", 47, 2, 42, 1))
sketch4.addConstraint(Sketcher.Constraint("Coincident", 48, 2, 49, 1))
sketch4.addConstraint(Sketcher.Constraint("Coincident", 49, 2, 50, 1))
sketch4.addConstraint(Sketcher.Constraint("Coincident", 50, 2, 51, 1))
sketch4.addConstraint(Sketcher.Constraint("Coincident", 51, 2, 52, 1))
sketch4.addConstraint(Sketcher.Constraint("Coincident", 52, 2, 53, 1))
sketch4.addConstraint(Sketcher.Constraint("Coincident", 53, 2, 48, 1))
sketch4.addConstraint(Sketcher.Constraint("Coincident", 54, 2, 55, 1))
sketch4.addConstraint(Sketcher.Constraint("Coincident", 55, 2, 56, 1))
sketch4.addConstraint(Sketcher.Constraint("Coincident", 56, 2, 57, 1))
sketch4.addConstraint(Sketcher.Constraint("Coincident", 57, 2, 58, 1))
sketch4.addConstraint(Sketcher.Constraint("Coincident", 58, 2, 59, 1))
sketch4.addConstraint(Sketcher.Constraint("Coincident", 59, 2, 54, 1))
sketch4.addConstraint(Sketcher.Constraint("Vertical", 0))
sketch4.addConstraint(Sketcher.Constraint("Horizontal", 1))
sketch4.addConstraint(Sketcher.Constraint("Horizontal", 3))
sketch4.addConstraint(Sketcher.Constraint("Vertical", 4))
sketch4.addConstraint(Sketcher.Constraint("Horizontal", 5))
sketch4.addConstraint(Sketcher.Constraint("Vertical", 6))
sketch4.addConstraint(Sketcher.Constraint("Horizontal", 7))
sketch4.addConstraint(Sketcher.Constraint("Horizontal", 9))
sketch4.addConstraint(Sketcher.Constraint("Vertical", 10))
sketch4.addConstraint(Sketcher.Constraint("Horizontal", 11))
sketch4.addConstraint(Sketcher.Constraint("Horizontal", 12))
sketch4.addConstraint(Sketcher.Constraint("Vertical", 13))
sketch4.addConstraint(Sketcher.Constraint("Horizontal", 14))
sketch4.addConstraint(Sketcher.Constraint("Vertical", 15))
sketch4.addConstraint(Sketcher.Constraint("Horizontal", 16))
sketch4.addConstraint(Sketcher.Constraint("Horizontal", 18))
sketch4.addConstraint(Sketcher.Constraint("Vertical", 19))
sketch4.addConstraint(Sketcher.Constraint("Horizontal", 20))
sketch4.addConstraint(Sketcher.Constraint("Vertical", 21))
sketch4.addConstraint(Sketcher.Constraint("Horizontal", 22))
sketch4.addConstraint(Sketcher.Constraint("Horizontal", 24))
sketch4.addConstraint(Sketcher.Constraint("Vertical", 25))
sketch4.addConstraint(Sketcher.Constraint("Horizontal", 26))
sketch4.addConstraint(Sketcher.Constraint("Vertical", 27))
sketch4.addConstraint(Sketcher.Constraint("Horizontal", 28))
sketch4.addConstraint(Sketcher.Constraint("Vertical", 30))
sketch4.addConstraint(Sketcher.Constraint("Horizontal", 31))
sketch4.addConstraint(Sketcher.Constraint("Horizontal", 33))
sketch4.addConstraint(Sketcher.Constraint("Vertical", 34))
sketch4.addConstraint(Sketcher.Constraint("Horizontal", 35))
sketch4.addConstraint(Sketcher.Constraint("Vertical", 36))
sketch4.addConstraint(Sketcher.Constraint("Horizontal", 37))
sketch4.addConstraint(Sketcher.Constraint("Horizontal", 39))
sketch4.addConstraint(Sketcher.Constraint("Vertical", 40))
sketch4.addConstraint(Sketcher.Constraint("Horizontal", 41))
sketch4.addConstraint(Sketcher.Constraint("Horizontal", 42))
sketch4.addConstraint(Sketcher.Constraint("Vertical", 43))
sketch4.addConstraint(Sketcher.Constraint("Horizontal", 44))
sketch4.addConstraint(Sketcher.Constraint("Horizontal", 46))
sketch4.addConstraint(Sketcher.Constraint("Vertical", 47))
sketch4.addConstraint(Sketcher.Constraint("Horizontal", 48))
sketch4.addConstraint(Sketcher.Constraint("Vertical", 49))
sketch4.addConstraint(Sketcher.Constraint("Horizontal", 50))
sketch4.addConstraint(Sketcher.Constraint("Vertical", 51))
sketch4.addConstraint(Sketcher.Constraint("Horizontal", 52))
sketch4.addConstraint(Sketcher.Constraint("Horizontal", 54))
sketch4.addConstraint(Sketcher.Constraint("Vertical", 55))
sketch4.addConstraint(Sketcher.Constraint("Horizontal", 56))
sketch4.addConstraint(Sketcher.Constraint("Vertical", 57))
sketch4.addConstraint(Sketcher.Constraint("Horizontal", 58))
sketch4.addConstraint(Sketcher.Constraint("Equal", 2, 8))
sketch4.addConstraint(Sketcher.Constraint("Equal", 8, 17))
sketch4.addConstraint(Sketcher.Constraint("Equal", 17, 23))
sketch4.addConstraint(Sketcher.Constraint("Equal", 23, 29))
sketch4.addConstraint(Sketcher.Constraint("Equal", 29, 32))
sketch4.addConstraint(Sketcher.Constraint("Equal", 32, 38))
sketch4.addConstraint(Sketcher.Constraint("Equal", 38, 45))
sketch4.addConstraint(Sketcher.Constraint("Equal", 45, 53))
sketch4.addConstraint(Sketcher.Constraint("Equal", 53, 59))
sketch4.addConstraint(Sketcher.Constraint("Symmetric", 2, 3, 32, 3, -1, 1))
sketch4.addConstraint(Sketcher.Constraint("Symmetric", 8, 3, 38, 3, -1, 1))
sketch4.addConstraint(Sketcher.Constraint("Symmetric", 17, 3, 45, 3, -1, 1))
sketch4.addConstraint(Sketcher.Constraint("Symmetric", 23, 3, 53, 3, -1, 1))
sketch4.addConstraint(Sketcher.Constraint("Symmetric", 29, 3, 59, 3, -1, 1))
sketch4.addConstraint(Sketcher.Constraint("Symmetric", 0, 2, 30, 2, -1, 1))
sketch4.addConstraint(Sketcher.Constraint("Symmetric", 3, 2, 33, 2, -1, 1))
sketch4.addConstraint(Sketcher.Constraint("Symmetric", 6, 2, 36, 2, -1, 1))
sketch4.addConstraint(Sketcher.Constraint("Symmetric", 9, 2, 39, 2, -1, 1))
sketch4.addConstraint(Sketcher.Constraint("Symmetric", 14, 2, 42, 2, -1, 1))
sketch4.addConstraint(Sketcher.Constraint("Symmetric", 12, 2, 46, 2, -1, 1))
sketch4.addConstraint(Sketcher.Constraint("Symmetric", 18, 2, 48, 2, -1, 1))
sketch4.addConstraint(Sketcher.Constraint("Symmetric", 20, 2, 50, 2, -1, 1))
sketch4.addConstraint(Sketcher.Constraint("Symmetric", 24, 2, 54, 2, -1, 1))
sketch4.addConstraint(Sketcher.Constraint("Symmetric", 26, 2, 56, 2, -1, 1))
sketch4.addConstraint(Sketcher.Constraint("Symmetric", 8, 3, 23, 3, -2))
sketch4.addConstraint(Sketcher.Constraint("Symmetric", 2, 3, 29, 3, -2))
sketch4.addConstraint(Sketcher.Constraint("Symmetric", 12, 2, 15, 2, -2))
sketch4.addConstraint(Sketcher.Constraint("Symmetric", 6, 2, 18, 2, -2))
sketch4.addConstraint(Sketcher.Constraint("Symmetric", 10, 2, 20, 2, -2))
sketch4.addConstraint(Sketcher.Constraint("Symmetric", 0, 2, 24, 2, -2))
sketch4.addConstraint(Sketcher.Constraint("Symmetric", 4, 2, 26, 2, -2))
sketch4.addConstraint(Sketcher.Constraint("Symmetric", 44, 2, 45, 2, -2))
sketch4.addConstraint(Sketcher.Constraint("Horizontal", 2, 3, 8, 3))
sketch4.addConstraint(Sketcher.Constraint("Horizontal", 8, 3, 17, 3))
sketch4.addConstraint(Sketcher.Constraint("Horizontal", 29, 3, 0, 2))
sketch4.addConstraint(Sketcher.Constraint("Horizontal", 1, 2, 2, 2))
sketch4.addConstraint(Sketcher.Constraint("Horizontal", 3, 2, 6, 2))
sketch4.addConstraint(Sketcher.Constraint("Horizontal", 7, 2, 8, 2))
sketch4.addConstraint(Sketcher.Constraint("Horizontal", 5, 2, 10, 2))
sketch4.addConstraint(Sketcher.Constraint("Horizontal", 9, 2, 12, 2))
sketch4.addConstraint(Sketcher.Constraint("Horizontal", 11, 2, 13, 2))
sketch4.addConstraint(Sketcher.Constraint("Horizontal", 18, 2, 21, 2))
sketch4.addConstraint(Sketcher.Constraint("Horizontal", 24, 2, 27, 2))
sketch4.addConstraint(Sketcher.Constraint("Horizontal", 35, 2, 40, 2))
sketch4.addConstraint(Sketcher.Constraint("Horizontal", 41, 2, 42, 2))
sketch4.addConstraint(Sketcher.Constraint("Horizontal", 48, 2, 51, 2))
sketch4.addConstraint(Sketcher.Constraint("Horizontal", 54, 2, 57, 2))
sketch4.addConstraint(Sketcher.Constraint("Equal", 1, 3))
sketch4.addConstraint(Sketcher.Constraint("Equal", 3, 7))
sketch4.addConstraint(Sketcher.Constraint("Equal", 7, 9))
sketch4.addConstraint(Sketcher.Constraint("Equal", 9, 12))
sketch4.addConstraint(Sketcher.Constraint("Radius", 2, Q("0.1 mm")))
sketch4.addConstraint(Sketcher.Constraint("DistanceX", 1, 1, 1, 2, Q("0.1 mm")))
sketch4.addConstraint(Sketcher.Constraint("DistanceX", -1, 1, 2, 3, Q("2 mm")))
sketch4.addConstraint(Sketcher.Constraint("DistanceX", -1, 1, 8, 3, Q("1 mm")))
sketch4.addConstraint(Sketcher.Constraint("DistanceY", 0, 1, 0, 2, Q("0.35 mm")))
sketch4.addConstraint(Sketcher.Constraint("DistanceY", -1, 1, 2, 3, Q("1.6 mm")))
pocket3 = doc.addObject("PartDesign::Pocket", "Pocket002")
body.addObject(pocket3)
pocket3.Profile = sketch4
pocket3.Length = 0.6
pocket3.Reversed = True

doc.recompute()
